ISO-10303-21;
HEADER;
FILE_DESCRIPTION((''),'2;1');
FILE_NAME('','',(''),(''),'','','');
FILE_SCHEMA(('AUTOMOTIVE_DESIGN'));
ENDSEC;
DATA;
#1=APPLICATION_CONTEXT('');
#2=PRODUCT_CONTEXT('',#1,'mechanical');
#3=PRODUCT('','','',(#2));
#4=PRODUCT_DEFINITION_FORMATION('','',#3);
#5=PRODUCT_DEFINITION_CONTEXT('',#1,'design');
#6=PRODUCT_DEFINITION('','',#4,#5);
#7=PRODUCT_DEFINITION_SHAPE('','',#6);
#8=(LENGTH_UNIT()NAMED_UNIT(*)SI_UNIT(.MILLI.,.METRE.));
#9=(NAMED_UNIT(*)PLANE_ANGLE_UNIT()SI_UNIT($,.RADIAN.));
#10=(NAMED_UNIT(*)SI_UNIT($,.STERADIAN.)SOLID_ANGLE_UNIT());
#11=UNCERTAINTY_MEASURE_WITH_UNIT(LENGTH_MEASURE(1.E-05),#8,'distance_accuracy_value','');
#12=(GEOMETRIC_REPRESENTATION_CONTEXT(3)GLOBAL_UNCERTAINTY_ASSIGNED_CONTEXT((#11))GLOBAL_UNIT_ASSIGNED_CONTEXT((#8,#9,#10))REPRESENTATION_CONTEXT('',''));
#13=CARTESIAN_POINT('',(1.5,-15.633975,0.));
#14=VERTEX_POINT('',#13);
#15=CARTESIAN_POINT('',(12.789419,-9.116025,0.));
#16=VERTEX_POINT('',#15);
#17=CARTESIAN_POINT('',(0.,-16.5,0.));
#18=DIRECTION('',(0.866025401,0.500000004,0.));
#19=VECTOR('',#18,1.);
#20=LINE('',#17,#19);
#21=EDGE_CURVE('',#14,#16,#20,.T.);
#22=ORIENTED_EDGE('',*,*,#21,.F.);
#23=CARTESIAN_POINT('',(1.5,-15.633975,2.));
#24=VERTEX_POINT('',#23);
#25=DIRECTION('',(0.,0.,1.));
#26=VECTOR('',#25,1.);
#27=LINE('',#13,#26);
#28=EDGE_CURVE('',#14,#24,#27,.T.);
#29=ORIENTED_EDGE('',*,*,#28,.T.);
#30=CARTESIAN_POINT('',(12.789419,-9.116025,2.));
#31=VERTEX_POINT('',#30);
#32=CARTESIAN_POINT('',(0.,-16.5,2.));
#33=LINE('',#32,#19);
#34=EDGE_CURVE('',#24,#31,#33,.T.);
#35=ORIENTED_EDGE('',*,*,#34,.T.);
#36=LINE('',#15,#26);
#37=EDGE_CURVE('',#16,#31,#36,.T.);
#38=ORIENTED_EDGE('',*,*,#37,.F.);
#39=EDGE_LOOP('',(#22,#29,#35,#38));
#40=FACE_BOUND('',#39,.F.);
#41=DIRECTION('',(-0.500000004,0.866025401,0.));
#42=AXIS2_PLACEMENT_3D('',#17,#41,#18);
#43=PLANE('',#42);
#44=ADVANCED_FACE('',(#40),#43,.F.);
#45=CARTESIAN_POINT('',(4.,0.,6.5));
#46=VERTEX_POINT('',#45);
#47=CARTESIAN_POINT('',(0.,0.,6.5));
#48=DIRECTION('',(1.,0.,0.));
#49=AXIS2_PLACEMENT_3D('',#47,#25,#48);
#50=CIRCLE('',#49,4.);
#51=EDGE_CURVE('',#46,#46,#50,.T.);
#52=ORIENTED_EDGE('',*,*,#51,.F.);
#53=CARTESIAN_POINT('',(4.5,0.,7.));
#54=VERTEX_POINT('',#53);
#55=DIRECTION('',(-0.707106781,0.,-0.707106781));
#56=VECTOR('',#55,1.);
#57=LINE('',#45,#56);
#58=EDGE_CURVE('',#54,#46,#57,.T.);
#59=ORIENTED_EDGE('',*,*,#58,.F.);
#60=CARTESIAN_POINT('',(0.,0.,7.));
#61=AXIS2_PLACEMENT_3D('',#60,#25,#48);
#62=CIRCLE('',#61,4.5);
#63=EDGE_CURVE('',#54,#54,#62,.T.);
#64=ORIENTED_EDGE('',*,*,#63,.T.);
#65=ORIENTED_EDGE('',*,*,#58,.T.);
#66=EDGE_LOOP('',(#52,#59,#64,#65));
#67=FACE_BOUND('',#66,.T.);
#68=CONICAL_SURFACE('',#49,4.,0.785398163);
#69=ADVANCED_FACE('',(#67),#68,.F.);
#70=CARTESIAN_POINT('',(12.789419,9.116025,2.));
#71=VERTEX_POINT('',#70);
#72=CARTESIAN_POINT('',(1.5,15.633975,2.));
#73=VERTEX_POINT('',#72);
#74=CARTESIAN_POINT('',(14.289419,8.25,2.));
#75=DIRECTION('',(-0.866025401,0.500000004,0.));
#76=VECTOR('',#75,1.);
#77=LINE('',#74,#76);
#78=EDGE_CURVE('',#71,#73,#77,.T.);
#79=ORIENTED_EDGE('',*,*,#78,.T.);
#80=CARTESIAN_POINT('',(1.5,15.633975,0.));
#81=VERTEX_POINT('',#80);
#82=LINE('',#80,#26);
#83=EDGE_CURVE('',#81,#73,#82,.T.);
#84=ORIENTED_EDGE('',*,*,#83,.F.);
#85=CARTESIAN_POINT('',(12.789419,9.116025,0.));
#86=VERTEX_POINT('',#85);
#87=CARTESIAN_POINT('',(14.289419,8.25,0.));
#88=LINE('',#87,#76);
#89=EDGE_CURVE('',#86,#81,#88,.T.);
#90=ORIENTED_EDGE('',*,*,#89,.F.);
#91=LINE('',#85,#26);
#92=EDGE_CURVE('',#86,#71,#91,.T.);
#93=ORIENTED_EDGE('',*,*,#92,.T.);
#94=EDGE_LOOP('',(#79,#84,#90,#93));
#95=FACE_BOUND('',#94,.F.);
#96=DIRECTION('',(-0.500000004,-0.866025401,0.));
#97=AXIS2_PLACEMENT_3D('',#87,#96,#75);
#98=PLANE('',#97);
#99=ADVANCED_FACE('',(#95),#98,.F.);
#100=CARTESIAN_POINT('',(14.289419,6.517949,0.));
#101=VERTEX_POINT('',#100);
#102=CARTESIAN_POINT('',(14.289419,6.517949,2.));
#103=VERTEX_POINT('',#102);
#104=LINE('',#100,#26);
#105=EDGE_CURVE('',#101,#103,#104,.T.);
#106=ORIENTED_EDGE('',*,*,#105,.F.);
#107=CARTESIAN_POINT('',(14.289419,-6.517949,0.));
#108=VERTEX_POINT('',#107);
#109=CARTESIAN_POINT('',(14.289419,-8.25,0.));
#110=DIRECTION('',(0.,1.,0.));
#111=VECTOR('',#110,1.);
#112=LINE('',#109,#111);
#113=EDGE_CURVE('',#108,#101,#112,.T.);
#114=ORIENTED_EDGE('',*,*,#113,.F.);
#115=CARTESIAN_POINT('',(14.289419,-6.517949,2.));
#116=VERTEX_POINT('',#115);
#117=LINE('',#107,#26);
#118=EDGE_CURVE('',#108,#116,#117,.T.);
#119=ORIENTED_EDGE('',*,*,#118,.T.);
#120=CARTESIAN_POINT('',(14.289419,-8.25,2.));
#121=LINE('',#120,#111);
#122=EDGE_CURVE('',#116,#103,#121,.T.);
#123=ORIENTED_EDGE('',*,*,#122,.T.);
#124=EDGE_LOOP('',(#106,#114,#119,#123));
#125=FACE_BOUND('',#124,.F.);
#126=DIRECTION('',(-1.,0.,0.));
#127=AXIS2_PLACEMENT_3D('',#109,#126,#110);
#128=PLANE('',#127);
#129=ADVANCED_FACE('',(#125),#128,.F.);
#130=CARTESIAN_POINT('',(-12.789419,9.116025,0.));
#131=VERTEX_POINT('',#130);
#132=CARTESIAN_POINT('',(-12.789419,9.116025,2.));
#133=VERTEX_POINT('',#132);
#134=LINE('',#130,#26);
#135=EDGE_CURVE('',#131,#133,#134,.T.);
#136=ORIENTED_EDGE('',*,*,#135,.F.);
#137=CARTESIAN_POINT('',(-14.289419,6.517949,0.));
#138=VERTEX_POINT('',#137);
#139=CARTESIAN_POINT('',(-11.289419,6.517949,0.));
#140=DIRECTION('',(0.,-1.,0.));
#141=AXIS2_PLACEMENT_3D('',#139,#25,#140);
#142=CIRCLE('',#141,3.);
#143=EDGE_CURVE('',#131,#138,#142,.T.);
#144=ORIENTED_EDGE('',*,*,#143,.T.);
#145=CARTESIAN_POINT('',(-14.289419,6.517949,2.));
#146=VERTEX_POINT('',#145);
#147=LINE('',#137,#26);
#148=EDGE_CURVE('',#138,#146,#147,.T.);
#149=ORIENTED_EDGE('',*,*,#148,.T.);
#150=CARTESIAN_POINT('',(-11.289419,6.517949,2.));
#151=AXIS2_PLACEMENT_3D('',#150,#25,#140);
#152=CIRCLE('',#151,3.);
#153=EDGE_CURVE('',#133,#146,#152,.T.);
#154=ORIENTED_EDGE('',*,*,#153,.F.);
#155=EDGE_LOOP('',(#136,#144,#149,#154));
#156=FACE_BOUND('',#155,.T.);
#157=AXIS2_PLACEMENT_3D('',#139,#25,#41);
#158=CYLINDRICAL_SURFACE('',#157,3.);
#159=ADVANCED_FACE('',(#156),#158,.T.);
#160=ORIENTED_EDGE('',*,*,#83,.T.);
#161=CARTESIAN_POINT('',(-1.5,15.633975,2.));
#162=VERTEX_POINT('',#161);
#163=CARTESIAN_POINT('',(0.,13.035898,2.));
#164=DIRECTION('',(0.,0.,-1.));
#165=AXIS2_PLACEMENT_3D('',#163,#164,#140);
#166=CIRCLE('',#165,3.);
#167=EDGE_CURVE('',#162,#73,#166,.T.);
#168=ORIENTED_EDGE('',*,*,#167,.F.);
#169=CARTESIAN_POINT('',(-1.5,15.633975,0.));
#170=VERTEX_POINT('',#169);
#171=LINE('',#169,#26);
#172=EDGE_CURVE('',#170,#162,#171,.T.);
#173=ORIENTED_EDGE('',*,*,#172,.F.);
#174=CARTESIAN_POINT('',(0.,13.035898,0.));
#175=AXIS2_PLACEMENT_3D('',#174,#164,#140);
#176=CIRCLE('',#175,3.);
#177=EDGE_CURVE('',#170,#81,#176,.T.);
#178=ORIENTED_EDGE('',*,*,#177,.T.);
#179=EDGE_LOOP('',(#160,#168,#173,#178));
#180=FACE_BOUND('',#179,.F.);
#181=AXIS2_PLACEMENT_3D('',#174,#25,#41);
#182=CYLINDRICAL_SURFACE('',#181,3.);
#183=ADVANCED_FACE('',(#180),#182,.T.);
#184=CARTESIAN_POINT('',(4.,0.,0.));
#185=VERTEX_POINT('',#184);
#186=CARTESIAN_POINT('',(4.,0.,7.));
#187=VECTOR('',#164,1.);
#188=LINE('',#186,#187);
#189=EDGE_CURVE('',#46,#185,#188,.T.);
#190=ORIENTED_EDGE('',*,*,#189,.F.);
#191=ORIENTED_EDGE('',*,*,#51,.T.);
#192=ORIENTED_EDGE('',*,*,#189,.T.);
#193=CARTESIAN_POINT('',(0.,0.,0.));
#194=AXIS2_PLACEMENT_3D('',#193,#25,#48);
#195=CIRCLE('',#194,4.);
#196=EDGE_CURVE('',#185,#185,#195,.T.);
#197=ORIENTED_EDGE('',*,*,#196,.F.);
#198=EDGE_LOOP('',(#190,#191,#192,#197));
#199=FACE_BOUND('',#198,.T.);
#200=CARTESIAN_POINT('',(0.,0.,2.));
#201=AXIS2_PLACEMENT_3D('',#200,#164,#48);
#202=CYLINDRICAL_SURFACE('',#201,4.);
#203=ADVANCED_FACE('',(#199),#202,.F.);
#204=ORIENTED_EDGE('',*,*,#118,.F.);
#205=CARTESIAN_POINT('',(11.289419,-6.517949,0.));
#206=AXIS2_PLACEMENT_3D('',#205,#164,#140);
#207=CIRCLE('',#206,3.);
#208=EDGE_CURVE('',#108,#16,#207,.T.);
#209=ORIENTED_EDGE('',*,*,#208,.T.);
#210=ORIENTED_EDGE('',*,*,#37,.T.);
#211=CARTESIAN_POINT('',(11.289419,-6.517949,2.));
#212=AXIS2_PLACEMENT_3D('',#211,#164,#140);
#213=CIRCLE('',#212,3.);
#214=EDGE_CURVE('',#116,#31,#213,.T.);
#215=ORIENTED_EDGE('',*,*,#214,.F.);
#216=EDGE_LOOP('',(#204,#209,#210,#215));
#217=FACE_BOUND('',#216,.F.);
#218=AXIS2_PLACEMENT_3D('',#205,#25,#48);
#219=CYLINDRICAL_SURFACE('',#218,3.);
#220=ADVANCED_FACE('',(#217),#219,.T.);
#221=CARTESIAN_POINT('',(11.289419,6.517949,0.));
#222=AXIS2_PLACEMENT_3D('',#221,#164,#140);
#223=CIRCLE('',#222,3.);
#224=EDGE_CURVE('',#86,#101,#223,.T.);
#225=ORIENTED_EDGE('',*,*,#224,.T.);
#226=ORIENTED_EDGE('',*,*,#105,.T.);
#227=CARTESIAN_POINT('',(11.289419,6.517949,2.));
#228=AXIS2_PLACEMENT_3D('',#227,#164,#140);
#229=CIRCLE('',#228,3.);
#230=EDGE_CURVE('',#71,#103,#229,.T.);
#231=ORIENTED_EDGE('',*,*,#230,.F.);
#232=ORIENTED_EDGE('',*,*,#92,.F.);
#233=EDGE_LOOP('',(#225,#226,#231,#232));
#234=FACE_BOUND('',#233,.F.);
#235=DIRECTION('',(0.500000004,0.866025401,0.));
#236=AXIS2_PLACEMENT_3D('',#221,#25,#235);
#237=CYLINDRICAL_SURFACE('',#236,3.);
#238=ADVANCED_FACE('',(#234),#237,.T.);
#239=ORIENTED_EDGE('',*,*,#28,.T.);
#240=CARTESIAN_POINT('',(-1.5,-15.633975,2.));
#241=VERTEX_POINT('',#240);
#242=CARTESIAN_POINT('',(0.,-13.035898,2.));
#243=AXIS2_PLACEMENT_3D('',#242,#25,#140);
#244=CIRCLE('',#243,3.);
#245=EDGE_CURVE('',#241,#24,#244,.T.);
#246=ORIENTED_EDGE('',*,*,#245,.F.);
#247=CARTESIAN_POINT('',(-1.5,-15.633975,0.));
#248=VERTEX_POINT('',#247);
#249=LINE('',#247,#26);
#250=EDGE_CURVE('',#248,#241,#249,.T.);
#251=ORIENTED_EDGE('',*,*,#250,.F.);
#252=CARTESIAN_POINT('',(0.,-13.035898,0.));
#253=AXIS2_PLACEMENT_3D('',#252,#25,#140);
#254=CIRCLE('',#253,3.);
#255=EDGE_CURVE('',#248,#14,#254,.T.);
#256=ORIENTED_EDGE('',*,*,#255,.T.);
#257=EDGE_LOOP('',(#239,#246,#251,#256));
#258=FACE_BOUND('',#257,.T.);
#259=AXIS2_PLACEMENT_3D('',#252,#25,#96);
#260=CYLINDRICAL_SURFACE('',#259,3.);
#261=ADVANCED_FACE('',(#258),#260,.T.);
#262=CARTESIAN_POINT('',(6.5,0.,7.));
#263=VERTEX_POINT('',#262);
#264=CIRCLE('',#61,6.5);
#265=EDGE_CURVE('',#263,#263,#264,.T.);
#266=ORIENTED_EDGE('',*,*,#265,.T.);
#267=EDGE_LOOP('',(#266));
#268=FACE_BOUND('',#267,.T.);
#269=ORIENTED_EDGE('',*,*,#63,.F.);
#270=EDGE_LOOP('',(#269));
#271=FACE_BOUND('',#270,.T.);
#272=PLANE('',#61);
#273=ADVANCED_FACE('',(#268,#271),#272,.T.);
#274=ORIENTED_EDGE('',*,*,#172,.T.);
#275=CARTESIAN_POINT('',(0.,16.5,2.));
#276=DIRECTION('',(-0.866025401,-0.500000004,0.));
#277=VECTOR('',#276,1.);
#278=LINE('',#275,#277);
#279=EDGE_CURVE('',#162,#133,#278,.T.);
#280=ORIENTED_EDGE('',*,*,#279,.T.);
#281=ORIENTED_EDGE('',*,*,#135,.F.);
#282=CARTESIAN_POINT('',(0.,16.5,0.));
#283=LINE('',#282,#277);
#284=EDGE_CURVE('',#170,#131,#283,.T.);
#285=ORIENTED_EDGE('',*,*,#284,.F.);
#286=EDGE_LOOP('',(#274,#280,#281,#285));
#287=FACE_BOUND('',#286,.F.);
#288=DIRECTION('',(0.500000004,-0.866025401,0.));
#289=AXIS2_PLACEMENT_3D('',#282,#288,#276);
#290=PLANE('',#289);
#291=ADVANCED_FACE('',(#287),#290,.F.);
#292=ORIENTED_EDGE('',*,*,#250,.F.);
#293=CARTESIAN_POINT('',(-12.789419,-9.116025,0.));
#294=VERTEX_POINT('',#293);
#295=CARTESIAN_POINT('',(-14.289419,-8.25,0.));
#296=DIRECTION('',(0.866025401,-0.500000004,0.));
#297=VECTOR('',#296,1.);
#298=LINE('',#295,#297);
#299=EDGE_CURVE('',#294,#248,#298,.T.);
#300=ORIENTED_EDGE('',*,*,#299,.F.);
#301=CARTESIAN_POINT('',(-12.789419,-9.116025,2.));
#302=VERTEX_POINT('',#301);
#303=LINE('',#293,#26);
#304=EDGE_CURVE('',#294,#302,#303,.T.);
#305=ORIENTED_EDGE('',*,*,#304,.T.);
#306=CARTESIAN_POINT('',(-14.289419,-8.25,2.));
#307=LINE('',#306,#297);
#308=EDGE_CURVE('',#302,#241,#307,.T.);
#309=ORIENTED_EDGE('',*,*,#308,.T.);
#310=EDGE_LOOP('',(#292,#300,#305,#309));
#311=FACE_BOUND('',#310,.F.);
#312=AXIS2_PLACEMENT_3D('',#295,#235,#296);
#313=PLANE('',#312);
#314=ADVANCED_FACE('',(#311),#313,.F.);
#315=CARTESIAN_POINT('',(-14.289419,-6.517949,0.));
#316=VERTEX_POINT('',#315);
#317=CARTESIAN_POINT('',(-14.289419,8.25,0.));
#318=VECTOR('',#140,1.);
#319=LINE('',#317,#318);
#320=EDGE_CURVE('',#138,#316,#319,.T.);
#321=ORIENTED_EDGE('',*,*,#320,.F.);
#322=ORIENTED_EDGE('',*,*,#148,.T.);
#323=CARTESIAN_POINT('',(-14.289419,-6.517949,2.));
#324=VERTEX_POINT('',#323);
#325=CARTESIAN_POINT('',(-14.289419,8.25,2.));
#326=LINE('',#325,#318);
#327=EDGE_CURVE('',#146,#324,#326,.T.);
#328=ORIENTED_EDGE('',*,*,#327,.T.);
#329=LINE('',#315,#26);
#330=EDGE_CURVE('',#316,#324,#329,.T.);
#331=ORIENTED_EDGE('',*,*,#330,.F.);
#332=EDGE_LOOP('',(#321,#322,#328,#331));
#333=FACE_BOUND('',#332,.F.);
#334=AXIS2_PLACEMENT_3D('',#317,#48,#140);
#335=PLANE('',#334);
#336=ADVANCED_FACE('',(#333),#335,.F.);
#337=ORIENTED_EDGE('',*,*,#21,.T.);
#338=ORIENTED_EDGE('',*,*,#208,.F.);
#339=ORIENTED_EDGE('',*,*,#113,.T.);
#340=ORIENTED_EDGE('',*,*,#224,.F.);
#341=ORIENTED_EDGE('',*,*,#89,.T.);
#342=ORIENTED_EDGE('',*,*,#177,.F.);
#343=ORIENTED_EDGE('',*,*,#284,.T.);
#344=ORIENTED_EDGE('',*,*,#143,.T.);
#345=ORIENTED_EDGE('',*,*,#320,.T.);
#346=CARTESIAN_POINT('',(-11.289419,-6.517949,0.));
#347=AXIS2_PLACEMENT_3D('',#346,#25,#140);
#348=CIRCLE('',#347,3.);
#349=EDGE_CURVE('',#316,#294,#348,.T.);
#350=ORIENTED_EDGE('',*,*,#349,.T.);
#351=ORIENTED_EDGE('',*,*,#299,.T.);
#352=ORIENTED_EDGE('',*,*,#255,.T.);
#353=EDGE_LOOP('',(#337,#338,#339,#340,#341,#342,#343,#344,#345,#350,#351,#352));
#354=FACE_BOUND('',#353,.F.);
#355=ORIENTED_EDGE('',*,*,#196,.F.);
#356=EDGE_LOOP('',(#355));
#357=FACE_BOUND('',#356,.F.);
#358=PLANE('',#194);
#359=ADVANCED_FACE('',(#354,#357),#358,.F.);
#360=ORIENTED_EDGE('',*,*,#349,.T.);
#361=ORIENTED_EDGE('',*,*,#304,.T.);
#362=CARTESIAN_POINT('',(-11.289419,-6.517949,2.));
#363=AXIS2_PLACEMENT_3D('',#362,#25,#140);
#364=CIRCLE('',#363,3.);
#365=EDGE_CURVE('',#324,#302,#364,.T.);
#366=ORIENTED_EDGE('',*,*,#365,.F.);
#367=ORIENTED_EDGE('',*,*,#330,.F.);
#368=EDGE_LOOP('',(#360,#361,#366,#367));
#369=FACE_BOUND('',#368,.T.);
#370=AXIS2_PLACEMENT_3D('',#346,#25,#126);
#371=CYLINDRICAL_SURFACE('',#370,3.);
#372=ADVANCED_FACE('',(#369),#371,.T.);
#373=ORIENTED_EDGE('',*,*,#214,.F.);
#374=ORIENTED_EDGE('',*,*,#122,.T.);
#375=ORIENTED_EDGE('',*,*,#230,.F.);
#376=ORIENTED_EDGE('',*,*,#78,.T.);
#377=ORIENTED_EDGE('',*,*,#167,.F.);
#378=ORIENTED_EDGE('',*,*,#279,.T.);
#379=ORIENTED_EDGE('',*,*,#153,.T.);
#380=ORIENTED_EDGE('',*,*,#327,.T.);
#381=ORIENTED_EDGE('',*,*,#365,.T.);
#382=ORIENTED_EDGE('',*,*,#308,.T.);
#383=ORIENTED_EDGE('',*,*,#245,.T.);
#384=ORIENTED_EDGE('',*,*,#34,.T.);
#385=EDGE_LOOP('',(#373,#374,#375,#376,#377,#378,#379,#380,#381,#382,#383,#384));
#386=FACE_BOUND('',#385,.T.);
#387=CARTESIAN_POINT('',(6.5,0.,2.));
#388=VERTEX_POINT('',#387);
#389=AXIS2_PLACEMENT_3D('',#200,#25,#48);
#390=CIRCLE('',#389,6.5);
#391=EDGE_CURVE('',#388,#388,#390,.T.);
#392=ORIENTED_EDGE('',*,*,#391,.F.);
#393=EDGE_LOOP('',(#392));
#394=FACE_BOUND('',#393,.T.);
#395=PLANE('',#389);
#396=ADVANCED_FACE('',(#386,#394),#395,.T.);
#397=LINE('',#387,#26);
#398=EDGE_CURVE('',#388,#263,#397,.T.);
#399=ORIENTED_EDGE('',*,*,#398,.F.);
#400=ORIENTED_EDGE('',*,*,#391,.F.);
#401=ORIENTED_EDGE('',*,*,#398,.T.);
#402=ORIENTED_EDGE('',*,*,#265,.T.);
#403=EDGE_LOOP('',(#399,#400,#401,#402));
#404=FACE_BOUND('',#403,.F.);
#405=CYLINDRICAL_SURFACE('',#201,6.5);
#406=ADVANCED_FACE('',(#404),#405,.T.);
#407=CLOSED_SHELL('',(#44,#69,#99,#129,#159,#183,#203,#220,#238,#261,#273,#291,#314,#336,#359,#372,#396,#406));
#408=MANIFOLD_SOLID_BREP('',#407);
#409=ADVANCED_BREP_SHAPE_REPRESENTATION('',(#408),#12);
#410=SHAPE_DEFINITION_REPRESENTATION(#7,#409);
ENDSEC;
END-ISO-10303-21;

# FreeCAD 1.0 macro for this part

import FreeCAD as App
import Part
import Sketcher
from FreeCAD import Vector
Q = App.Units.Quantity


def edges_at(feature, points):
    """Names of the edges that pass closest to the given points."""
    edges = feature.Shape.Edges
    near = lambda p: min(range(len(edges)), key=lambda i: edges[i].distToShape(Part.Vertex(*p))[0])
    return sorted({f"Edge{near(p) + 1}" for p in points})

doc = App.newDocument("Part")
body = doc.addObject("PartDesign::Body", "Body")

sketch1 = body.newObject("Sketcher::SketchObject", "Sketch")
sketch1.AttachmentSupport = (doc.getObject("XY_Plane"), [""])
sketch1.MapMode = "FlatFace"
sketch1.addGeometry([
    Part.LineSegment(Vector(0, 16.5, 0), Vector(-14.3, 8.2, 0)),
    Part.LineSegment(Vector(-14.3, 8.2, 0), Vector(-14.3, -8.2, 0)),
    Part.LineSegment(Vector(-14.3, -8.2, 0), Vector(0, -16.5, 0)),
    Part.LineSegment(Vector(0, -16.5, 0), Vector(14.3, -8.2, 0)),
    Part.LineSegment(Vector(14.3, -8.2, 0), Vector(14.3, 8.2, 0)),
    Part.LineSegment(Vector(14.3, 8.2, 0), Vector(0, 16.5, 0)),
    Part.Circle(Vector(0, 0, 0), Vector(0, 0, 1), 4),
], False)
sketch1.addConstraint([
    Sketcher.Constraint("Coincident", 0, 2, 1, 1),
    Sketcher.Constraint("Coincident", 1, 2, 2, 1),
    Sketcher.Constraint("Coincident", 2, 2, 3, 1),
    Sketcher.Constraint("Coincident", 3, 2, 4, 1),
    Sketcher.Constraint("Coincident", 4, 2, 5, 1),
    Sketcher.Constraint("Coincident", 5, 2, 0, 1),
    Sketcher.Constraint("Vertical", 1),
    Sketcher.Constraint("Vertical", 4),
    Sketcher.Constraint("Coincident", 6, 3, -1, 1),
    Sketcher.Constraint("Symmetric", 0, 2, 3, 2, -1, 1),
    Sketcher.Constraint("Symmetric", 2, 2, 5, 2, -1, 1),
    Sketcher.Constraint("PointOnObject", 2, 2, -2),
    Sketcher.Constraint("Parallel", 2, 5),
    Sketcher.Constraint("Horizontal", 1, 2, 3, 2),
    Sketcher.Constraint("Diameter", 6, 8.0),
    Sketcher.Constraint("Angle", 0, Q("-150 deg")),
    Sketcher.Constraint("DistanceY", 1, 2, 1, 1, 16.5),
    Sketcher.Constraint("Distance", 0, 16.5),
])
pad1 = body.newObject("PartDesign::Pad", "Pad")
pad1.Profile = sketch1
pad1.Length = 2

sketch2 = body.newObject("Sketcher::SketchObject", "Sketch001")
sketch2.AttachmentSupport = (doc.getObject("XY_Plane"), [""])
sketch2.MapMode = "FlatFace"
sketch2.AttachmentOffset = App.Placement(Vector(0, 0, 2), App.Rotation())
sketch2.addGeometry([
    Part.Circle(Vector(0, 0, 0), Vector(0, 0, 1), 6.5),
    Part.Circle(Vector(0, 0, 0), Vector(0, 0, 1), 4),
], False)
sketch2.addConstraint([
    Sketcher.Constraint("Coincident", 0, 3, -1, 1),
    Sketcher.Constraint("Coincident", 1, 3, -1, 1),
    Sketcher.Constraint("Diameter", 0, 13.0),
    Sketcher.Constraint("Diameter", 1, 8.0),
])
pad2 = body.newObject("PartDesign::Pad", "Pad001")
pad2.Profile = sketch2
pad2.Length = 5
doc.recompute()

chamfer = body.newObject("PartDesign::Chamfer", "Chamfer")
chamfer.Base = (pad2, edges_at(pad2, [(-4, 0, 7)]))
chamfer.Size = 0.5
doc.recompute()

fillet = body.newObject("PartDesign::Fillet", "Fillet")
fillet.Base = (chamfer, edges_at(chamfer, [
    (0, -16.5, 1),
    (14.289, -8.25, 1),
    (14.289, 8.25, 1),
    (-14.289, -8.25, 1),
    (-14.289, 8.25, 1),
    (0, 16.5, 1),
]))
fillet.Radius = 3

doc.recompute()
